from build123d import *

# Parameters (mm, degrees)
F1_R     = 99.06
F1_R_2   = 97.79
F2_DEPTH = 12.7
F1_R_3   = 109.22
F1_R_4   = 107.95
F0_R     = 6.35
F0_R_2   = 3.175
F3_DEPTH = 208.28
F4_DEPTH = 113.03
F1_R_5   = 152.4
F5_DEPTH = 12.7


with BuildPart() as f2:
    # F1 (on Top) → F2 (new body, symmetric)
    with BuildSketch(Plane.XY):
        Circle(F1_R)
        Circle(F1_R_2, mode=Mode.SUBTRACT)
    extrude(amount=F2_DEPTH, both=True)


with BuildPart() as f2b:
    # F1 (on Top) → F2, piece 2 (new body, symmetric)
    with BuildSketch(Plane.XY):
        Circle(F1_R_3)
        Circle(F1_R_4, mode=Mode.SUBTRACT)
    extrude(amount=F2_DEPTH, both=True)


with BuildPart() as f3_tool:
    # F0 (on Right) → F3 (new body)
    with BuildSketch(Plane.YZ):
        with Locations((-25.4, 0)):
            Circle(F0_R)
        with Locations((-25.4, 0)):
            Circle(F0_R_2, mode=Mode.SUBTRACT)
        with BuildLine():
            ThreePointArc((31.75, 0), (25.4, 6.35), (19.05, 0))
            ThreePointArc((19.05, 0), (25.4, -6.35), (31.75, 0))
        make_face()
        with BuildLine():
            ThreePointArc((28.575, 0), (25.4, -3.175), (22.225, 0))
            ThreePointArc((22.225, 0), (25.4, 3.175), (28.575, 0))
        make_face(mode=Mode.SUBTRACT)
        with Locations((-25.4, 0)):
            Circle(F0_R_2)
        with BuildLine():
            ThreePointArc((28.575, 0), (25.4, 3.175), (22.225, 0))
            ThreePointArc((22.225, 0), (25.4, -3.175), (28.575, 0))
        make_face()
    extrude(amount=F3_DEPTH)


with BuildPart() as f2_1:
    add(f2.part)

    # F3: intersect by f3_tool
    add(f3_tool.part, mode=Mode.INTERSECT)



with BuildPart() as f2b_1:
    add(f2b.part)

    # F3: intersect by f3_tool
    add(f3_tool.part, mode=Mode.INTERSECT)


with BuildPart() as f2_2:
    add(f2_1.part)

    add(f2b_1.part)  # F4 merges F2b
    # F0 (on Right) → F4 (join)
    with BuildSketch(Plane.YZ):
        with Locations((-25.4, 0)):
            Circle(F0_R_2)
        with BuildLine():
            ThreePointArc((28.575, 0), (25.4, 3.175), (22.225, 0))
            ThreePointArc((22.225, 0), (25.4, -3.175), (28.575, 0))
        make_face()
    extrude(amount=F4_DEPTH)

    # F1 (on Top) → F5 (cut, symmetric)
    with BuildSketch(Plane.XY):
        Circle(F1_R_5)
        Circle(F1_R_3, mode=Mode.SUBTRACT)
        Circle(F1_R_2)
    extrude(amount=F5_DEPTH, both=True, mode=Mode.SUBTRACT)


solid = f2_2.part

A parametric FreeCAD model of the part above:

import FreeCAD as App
import Part
import Sketcher
Q = App.Units.Quantity

doc = App.newDocument("Part")
body = doc.addObject("PartDesign::Body", "Body")

# Sketch on XY plane
sketch1 = doc.addObject("Sketcher::SketchObject", "Sketch")
body.addObject(sketch1)
sketch1.AttachmentSupport = (doc.XY_Plane, [""])
sketch1.MapMode = "FlatFace"
sketch1.addGeometry(Part.Circle(App.Vector(0, 0, 0), App.Vector(0, 0, 1), 99), False)
sketch1.addGeometry(Part.Circle(App.Vector(0, 0, 0), App.Vector(0, 0, 1), 98), False)
sketch1.addConstraint(Sketcher.Constraint("Coincident", 0, 3, -1, 1))
sketch1.addConstraint(Sketcher.Constraint("Coincident", 1, 3, -1, 1))
sketch1.addConstraint(Sketcher.Constraint("Diameter", 0, Q("7.8 in")))
sketch1.addConstraint(Sketcher.Constraint("Diameter", 1, Q("7.7 in")))
pad1 = doc.addObject("PartDesign::Pad", "Pad")
body.addObject(pad1)
pad1.Profile = sketch1
pad1.Length = Q("1 in")
pad1.Midplane = True
body2 = doc.addObject("PartDesign::Body", "Body001")

# Sketch on XY plane
sketch2 = doc.addObject("Sketcher::SketchObject", "Sketch001")
body2.addObject(sketch2)
sketch2.AttachmentSupport = (doc.getObject("XY_Plane001"), [""])
sketch2.MapMode = "FlatFace"
sketch2.addGeometry(Part.Circle(App.Vector(0, 0, 0), App.Vector(0, 0, 1), 109), False)
sketch2.addGeometry(Part.Circle(App.Vector(0, 0, 0), App.Vector(0, 0, 1), 108), False)
sketch2.addConstraint(Sketcher.Constraint("Coincident", 0, 3, -1, 1))
sketch2.addConstraint(Sketcher.Constraint("Coincident", 1, 3, -1, 1))
sketch2.addConstraint(Sketcher.Constraint("Diameter", 0, Q("8.6 in")))
sketch2.addConstraint(Sketcher.Constraint("Diameter", 1, Q("8.5 in")))
pad2 = doc.addObject("PartDesign::Pad", "Pad001")
body2.addObject(pad2)
pad2.Profile = sketch2
pad2.Length = Q("1 in")
pad2.Midplane = True
body3 = doc.addObject("PartDesign::Body", "Body002")
body3.AllowCompound = True

# Sketch on YZ plane
sketch3 = doc.addObject("Sketcher::SketchObject", "Sketch002")
body3.addObject(sketch3)
sketch3.AttachmentSupport = (doc.getObject("YZ_Plane002"), [""])
sketch3.MapMode = "FlatFace"
sketch3.addGeometry(Part.Circle(App.Vector(-25, 0, 0), App.Vector(0, 0, 1), 6), False)
sketch3.addGeometry(Part.Circle(App.Vector(25, 0, 0), App.Vector(0, 0, 1), 6), False)
sketch3.addConstraint(Sketcher.Constraint("Equal", 0, 1))
sketch3.addConstraint(Sketcher.Constraint("Symmetric", 0, 3, 1, 3, -1, 1))
sketch3.addConstraint(Sketcher.Constraint("PointOnObject", 0, 3, -1))
sketch3.addConstraint(Sketcher.Constraint("Diameter", 0, Q("0.5 in")))
sketch3.addConstraint(Sketcher.Constraint("DistanceX", 0, 3, -1, 1, Q("1 in")))
pad3 = doc.addObject("PartDesign::Pad", "Pad002")
body3.addObject(pad3)
pad3.Profile = sketch3
pad3.Length = Q("8.2 in")
body.AllowCompound = True
doc.recompute()

body4 = doc.addObject("PartDesign::Body", "Body003")
body4.BaseFeature = body3
boolean = doc.addObject("PartDesign::Boolean", "Boolean")
body.addObject(boolean)
boolean.Type = "Common"
boolean.addObjects([body4])
doc.recompute()
body2.AllowCompound = True
doc.recompute()

boolean2 = doc.addObject("PartDesign::Boolean", "Boolean001")
body2.addObject(boolean2)
boolean2.Type = "Common"
boolean2.addObjects([body3])
body.AllowCompound = True
doc.recompute()

boolean3 = doc.addObject("PartDesign::Boolean", "Boolean002")
body.addObject(boolean3)
boolean3.Type = "Fuse"
boolean3.addObjects([body2])

# Sketch on YZ plane
sketch4 = doc.addObject("Sketcher::SketchObject", "Sketch003")
body.addObject(sketch4)
sketch4.AttachmentSupport = (doc.YZ_Plane, [""])
sketch4.MapMode = "FlatFace"
sketch4.addGeometry(Part.Circle(App.Vector(-25.4, 0, 0), App.Vector(0, 0, 1), 3.2), False)
sketch4.addGeometry(Part.Circle(App.Vector(25.4, 0, 0), App.Vector(0, 0, 1), 3.2), False)
sketch4.addConstraint(Sketcher.Constraint("Equal", 0, 1))
sketch4.addConstraint(Sketcher.Constraint("Symmetric", 0, 3, 1, 3, -1, 1))
sketch4.addConstraint(Sketcher.Constraint("PointOnObject", 0, 3, -1))
sketch4.addConstraint(Sketcher.Constraint("Diameter", 0, Q("0.25 in")))
sketch4.addConstraint(Sketcher.Constraint("DistanceX", 0, 3, -1, 1, Q("1 in")))
pad4 = doc.addObject("PartDesign::Pad", "Pad003")
body.addObject(pad4)
pad4.Profile = sketch4
pad4.Length = Q("4.45 in")

# Sketch on XY plane
sketch5 = doc.addObject("Sketcher::SketchObject", "Sketch004")
body.addObject(sketch5)
sketch5.AttachmentSupport = (doc.XY_Plane, [""])
sketch5.MapMode = "FlatFace"
sketch5.addGeometry(Part.Circle(App.Vector(0, 0, 0), App.Vector(0, 0, 1), 152), False)
sketch5.addGeometry(Part.Circle(App.Vector(0, 0, 0), App.Vector(0, 0, 1), 109), False)
sketch5.addGeometry(Part.Circle(App.Vector(0, 0, 0), App.Vector(0, 0, 1), 98), False)
sketch5.addConstraint(Sketcher.Constraint("Coincident", 0, 3, -1, 1))
sketch5.addConstraint(Sketcher.Constraint("Coincident", 1, 3, -1, 1))
sketch5.addConstraint(Sketcher.Constraint("Coincident", 2, 3, -1, 1))
sketch5.addConstraint(Sketcher.Constraint("Diameter", 0, Q("12 in")))
sketch5.addConstraint(Sketcher.Constraint("Diameter", 1, Q("8.6 in")))
sketch5.addConstraint(Sketcher.Constraint("Diameter", 2, Q("7.7 in")))
pocket1 = doc.addObject("PartDesign::Pocket", "Pocket")
body.addObject(pocket1)
pocket1.Profile = sketch5
pocket1.Length = Q("1 in")
pocket1.Midplane = True

doc.recompute()
